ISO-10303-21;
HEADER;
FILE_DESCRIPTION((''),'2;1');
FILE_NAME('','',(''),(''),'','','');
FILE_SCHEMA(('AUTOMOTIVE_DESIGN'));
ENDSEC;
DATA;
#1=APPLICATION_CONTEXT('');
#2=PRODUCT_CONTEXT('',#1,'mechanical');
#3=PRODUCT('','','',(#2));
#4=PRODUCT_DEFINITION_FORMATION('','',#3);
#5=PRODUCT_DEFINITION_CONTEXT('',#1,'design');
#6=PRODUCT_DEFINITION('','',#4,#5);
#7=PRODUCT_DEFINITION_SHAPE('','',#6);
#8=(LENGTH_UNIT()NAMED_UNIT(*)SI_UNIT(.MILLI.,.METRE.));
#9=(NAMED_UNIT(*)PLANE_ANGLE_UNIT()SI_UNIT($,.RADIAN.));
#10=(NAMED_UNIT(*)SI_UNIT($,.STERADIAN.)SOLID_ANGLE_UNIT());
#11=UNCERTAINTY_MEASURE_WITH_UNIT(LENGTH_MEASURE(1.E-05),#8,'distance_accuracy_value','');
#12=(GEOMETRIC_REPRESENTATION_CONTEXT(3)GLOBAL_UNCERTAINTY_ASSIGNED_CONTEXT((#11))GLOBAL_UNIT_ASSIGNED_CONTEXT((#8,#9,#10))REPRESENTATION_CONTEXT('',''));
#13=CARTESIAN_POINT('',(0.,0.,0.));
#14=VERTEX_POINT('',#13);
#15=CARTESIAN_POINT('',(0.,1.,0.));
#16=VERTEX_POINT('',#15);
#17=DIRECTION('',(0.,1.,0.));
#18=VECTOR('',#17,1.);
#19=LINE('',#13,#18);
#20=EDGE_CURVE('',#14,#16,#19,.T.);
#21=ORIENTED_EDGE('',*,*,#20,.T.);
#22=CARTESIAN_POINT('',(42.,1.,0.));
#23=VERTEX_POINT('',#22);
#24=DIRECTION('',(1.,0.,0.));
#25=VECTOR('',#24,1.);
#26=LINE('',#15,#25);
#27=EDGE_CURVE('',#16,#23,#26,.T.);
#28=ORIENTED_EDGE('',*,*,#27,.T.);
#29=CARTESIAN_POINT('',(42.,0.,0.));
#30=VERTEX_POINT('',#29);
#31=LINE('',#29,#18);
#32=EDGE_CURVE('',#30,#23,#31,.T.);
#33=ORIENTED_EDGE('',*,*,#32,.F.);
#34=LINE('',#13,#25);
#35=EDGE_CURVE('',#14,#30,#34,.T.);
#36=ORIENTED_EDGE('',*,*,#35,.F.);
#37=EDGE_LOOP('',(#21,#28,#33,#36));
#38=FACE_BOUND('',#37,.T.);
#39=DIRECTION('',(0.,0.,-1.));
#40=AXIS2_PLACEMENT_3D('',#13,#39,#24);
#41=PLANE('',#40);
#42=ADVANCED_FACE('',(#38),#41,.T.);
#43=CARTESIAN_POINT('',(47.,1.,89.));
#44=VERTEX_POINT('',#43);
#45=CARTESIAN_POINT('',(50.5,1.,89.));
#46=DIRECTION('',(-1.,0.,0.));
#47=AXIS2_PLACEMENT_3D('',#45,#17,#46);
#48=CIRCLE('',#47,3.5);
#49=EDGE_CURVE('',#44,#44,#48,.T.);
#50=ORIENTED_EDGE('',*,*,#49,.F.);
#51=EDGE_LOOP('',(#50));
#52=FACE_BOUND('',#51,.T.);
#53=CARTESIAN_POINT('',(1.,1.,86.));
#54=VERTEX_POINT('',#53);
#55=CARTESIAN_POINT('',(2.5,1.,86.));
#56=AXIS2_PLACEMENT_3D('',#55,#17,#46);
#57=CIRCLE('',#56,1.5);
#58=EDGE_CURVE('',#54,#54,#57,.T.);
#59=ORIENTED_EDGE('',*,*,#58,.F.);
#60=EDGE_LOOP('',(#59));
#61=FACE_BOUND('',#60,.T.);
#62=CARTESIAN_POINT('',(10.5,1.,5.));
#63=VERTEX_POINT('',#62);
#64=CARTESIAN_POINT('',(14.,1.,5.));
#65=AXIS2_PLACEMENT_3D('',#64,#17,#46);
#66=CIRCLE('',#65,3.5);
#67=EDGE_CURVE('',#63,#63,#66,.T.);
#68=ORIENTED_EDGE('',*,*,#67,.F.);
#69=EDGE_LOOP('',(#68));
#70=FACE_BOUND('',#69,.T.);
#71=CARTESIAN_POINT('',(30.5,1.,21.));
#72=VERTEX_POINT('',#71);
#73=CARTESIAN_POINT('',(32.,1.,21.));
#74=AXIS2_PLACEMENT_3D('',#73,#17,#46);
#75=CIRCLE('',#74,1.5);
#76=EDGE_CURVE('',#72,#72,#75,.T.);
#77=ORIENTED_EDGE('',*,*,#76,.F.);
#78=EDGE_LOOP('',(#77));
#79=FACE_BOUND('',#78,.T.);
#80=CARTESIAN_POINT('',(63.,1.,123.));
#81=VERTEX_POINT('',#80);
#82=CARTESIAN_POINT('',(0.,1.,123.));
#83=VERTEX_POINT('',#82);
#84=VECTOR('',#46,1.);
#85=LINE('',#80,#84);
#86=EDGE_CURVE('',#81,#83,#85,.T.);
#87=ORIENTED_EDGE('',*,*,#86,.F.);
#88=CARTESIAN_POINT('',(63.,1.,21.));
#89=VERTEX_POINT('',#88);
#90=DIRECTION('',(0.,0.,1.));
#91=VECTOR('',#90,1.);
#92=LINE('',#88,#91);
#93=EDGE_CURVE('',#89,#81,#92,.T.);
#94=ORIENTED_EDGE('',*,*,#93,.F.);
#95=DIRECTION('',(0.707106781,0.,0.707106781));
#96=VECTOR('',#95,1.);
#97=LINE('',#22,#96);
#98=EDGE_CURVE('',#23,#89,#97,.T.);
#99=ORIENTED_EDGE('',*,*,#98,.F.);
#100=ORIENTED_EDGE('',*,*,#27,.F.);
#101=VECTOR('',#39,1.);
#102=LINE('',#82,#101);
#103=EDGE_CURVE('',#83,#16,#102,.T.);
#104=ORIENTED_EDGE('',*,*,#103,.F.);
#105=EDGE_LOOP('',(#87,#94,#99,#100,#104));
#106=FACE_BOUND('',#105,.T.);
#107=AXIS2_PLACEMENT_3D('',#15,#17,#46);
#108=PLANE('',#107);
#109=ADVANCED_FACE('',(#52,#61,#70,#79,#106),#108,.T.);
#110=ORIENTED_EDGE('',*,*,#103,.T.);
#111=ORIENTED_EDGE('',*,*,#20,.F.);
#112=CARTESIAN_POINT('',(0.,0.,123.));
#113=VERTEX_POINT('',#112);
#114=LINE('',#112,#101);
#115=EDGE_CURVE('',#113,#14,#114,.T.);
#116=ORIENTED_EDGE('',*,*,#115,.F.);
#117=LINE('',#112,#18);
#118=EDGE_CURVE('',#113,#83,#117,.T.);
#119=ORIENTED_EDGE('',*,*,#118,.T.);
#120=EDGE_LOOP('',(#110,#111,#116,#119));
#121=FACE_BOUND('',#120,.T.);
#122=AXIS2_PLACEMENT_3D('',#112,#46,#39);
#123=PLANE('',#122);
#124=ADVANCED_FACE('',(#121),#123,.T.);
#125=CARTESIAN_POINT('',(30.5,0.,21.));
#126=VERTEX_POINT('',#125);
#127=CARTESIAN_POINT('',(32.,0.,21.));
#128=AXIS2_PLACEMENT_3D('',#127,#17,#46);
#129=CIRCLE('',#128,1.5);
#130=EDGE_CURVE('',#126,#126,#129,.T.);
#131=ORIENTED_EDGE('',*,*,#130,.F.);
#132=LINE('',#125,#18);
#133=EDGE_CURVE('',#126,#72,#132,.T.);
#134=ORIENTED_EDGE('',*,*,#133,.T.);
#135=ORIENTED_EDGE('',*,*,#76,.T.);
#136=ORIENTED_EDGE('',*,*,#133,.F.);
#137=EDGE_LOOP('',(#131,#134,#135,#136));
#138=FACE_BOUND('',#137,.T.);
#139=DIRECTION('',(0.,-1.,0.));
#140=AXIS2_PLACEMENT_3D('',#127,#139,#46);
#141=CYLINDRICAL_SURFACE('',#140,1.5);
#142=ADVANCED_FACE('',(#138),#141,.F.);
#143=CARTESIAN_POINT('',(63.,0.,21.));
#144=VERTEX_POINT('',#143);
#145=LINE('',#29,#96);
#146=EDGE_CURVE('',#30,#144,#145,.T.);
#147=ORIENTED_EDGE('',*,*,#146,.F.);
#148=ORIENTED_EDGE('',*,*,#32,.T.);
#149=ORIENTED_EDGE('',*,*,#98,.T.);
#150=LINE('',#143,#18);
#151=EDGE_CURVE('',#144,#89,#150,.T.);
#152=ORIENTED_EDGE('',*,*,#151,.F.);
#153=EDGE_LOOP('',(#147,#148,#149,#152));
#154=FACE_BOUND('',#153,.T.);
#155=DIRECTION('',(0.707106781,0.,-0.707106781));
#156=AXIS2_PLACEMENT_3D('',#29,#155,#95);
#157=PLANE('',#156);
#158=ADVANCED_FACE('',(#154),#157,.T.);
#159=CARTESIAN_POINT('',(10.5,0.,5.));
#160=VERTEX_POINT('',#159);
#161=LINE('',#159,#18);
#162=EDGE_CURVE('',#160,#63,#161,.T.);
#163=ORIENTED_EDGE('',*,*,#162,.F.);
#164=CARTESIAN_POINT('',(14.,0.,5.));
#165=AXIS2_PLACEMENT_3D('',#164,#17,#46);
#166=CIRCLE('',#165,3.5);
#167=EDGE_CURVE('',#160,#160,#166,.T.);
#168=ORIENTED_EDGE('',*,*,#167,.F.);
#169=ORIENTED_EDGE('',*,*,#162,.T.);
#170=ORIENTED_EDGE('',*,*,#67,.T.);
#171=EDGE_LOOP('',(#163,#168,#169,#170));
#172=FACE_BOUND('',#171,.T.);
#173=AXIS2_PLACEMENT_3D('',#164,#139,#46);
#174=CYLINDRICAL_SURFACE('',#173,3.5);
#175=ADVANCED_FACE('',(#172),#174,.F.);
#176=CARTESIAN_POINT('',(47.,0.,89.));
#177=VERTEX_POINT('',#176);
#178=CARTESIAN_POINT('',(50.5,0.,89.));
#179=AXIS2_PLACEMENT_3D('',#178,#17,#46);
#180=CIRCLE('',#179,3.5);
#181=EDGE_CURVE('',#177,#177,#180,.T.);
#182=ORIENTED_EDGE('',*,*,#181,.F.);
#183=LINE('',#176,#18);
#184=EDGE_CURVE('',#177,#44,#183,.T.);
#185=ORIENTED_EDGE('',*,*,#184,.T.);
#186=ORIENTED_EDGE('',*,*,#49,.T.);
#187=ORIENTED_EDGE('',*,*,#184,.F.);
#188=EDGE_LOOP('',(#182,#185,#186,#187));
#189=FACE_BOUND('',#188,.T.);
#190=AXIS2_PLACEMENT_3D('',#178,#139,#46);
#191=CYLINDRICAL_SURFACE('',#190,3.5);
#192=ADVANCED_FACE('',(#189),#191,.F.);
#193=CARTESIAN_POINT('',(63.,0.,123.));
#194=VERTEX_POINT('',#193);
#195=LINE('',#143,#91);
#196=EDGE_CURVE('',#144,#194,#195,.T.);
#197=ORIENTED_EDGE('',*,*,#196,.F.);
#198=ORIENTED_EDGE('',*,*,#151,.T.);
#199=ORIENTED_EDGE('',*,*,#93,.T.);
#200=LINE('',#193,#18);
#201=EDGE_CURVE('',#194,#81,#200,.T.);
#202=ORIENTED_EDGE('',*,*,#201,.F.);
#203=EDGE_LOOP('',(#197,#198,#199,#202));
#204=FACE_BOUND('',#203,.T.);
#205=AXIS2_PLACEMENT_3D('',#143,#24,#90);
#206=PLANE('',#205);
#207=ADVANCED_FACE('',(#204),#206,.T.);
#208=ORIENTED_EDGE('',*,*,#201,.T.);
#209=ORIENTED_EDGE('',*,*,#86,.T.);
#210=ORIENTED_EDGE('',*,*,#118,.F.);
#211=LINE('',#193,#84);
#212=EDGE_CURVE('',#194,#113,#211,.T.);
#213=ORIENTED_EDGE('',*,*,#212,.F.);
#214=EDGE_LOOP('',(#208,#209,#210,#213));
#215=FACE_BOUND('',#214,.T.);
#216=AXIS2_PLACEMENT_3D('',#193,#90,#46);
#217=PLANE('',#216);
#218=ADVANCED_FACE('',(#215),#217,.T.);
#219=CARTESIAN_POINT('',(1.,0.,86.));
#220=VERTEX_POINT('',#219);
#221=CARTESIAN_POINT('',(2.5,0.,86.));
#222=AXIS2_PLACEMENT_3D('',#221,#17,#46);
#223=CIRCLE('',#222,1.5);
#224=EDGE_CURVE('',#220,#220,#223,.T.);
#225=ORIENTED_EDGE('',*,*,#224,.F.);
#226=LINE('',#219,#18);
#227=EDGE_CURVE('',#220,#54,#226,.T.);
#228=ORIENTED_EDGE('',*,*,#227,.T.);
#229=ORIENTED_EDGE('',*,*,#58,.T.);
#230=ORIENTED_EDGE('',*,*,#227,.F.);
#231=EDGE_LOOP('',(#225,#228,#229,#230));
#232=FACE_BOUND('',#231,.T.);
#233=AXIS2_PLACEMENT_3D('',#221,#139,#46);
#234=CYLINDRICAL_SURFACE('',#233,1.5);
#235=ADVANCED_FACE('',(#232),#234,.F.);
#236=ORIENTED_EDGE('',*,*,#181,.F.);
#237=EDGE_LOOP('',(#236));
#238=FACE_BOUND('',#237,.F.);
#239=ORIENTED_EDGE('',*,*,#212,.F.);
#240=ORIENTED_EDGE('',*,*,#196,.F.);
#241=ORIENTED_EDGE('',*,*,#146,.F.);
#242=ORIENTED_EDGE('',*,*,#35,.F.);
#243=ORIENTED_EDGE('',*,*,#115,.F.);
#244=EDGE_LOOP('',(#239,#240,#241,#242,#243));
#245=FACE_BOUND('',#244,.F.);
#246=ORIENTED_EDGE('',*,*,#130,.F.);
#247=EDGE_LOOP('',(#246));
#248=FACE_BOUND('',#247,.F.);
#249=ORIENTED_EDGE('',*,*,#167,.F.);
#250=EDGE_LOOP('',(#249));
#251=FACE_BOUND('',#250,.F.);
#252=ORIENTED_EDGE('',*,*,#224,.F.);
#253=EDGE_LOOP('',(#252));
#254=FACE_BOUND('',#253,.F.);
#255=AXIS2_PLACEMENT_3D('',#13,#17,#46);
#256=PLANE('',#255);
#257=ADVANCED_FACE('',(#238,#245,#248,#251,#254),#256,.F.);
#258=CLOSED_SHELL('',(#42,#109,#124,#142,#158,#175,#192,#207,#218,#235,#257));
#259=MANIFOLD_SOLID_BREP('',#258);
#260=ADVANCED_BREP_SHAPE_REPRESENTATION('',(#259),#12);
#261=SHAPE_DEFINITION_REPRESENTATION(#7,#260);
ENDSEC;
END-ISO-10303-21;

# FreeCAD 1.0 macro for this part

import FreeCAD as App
import Part
import Sketcher
Q = App.Units.Quantity

doc = App.newDocument("Part")
body = doc.addObject("PartDesign::Body", "Body")

# Sketch on XZ plane
sketch1 = body.newObject("Sketcher::SketchObject", "Sketch")
sketch1.AttachmentSupport = (doc.getObject("XZ_Plane"), [""])
sketch1.MapMode = "FlatFace"
sketch1.addGeometry(Part.LineSegment(App.Vector(42, 0, 0), App.Vector(0, 0, 0)), False)
sketch1.addGeometry(Part.LineSegment(App.Vector(0, 0, 0), App.Vector(0, 123, 0)), False)
sketch1.addGeometry(Part.LineSegment(App.Vector(0, 123, 0), App.Vector(63, 123, 0)), False)
sketch1.addGeometry(Part.LineSegment(App.Vector(63, 123, 0), App.Vector(63, 21, 0)), False)
sketch1.addGeometry(Part.LineSegment(App.Vector(63, 21, 0), App.Vector(42, 0, 0)), False)
sketch1.addGeometry(Part.Circle(App.Vector(32, 21, 0), App.Vector(0, 0, 1), 1.5), False)
sketch1.addGeometry(Part.Circle(App.Vector(14, 5, 0), App.Vector(0, 0, 1), 3.5), False)
sketch1.addGeometry(Part.Circle(App.Vector(50.5, 89, 0), App.Vector(0, 0, 1), 3.5), False)
sketch1.addGeometry(Part.Circle(App.Vector(2.5, 86, 0), App.Vector(0, 0, 1), 1.5), False)
sketch1.addConstraint(Sketcher.Constraint("Coincident", 0, 2, 1, 1))
sketch1.addConstraint(Sketcher.Constraint("Coincident", 1, 2, 2, 1))
sketch1.addConstraint(Sketcher.Constraint("Coincident", 2, 2, 3, 1))
sketch1.addConstraint(Sketcher.Constraint("Coincident", 3, 2, 4, 1))
sketch1.addConstraint(Sketcher.Constraint("Coincident", 4, 2, 0, 1))
sketch1.addConstraint(Sketcher.Constraint("Horizontal", 0))
sketch1.addConstraint(Sketcher.Constraint("Vertical", 1))
sketch1.addConstraint(Sketcher.Constraint("Horizontal", 2))
sketch1.addConstraint(Sketcher.Constraint("Vertical", 3))
sketch1.addConstraint(Sketcher.Constraint("Coincident", 0, 2, -1, 1))
sketch1.addConstraint(Sketcher.Constraint("Equal", 6, 7))
sketch1.addConstraint(Sketcher.Constraint("Equal", 5, 8))
sketch1.addConstraint(Sketcher.Constraint("Horizontal", 5, 3, 3, 2))
sketch1.addConstraint(Sketcher.Constraint("Diameter", 5, Q("3 mm")))
sketch1.addConstraint(Sketcher.Constraint("Diameter", 6, Q("7 mm")))
sketch1.addConstraint(Sketcher.Constraint("DistanceX", 0, 2, 0, 1, Q("42 mm")))
sketch1.addConstraint(Sketcher.Constraint("DistanceX", 2, 1, 2, 2, Q("63 mm")))
sketch1.addConstraint(Sketcher.Constraint("DistanceY", 3, 2, 3, 1, Q("102 mm")))
sketch1.addConstraint(Sketcher.Constraint("Angle", 4, Q("-135 deg")))
sketch1.addConstraint(Sketcher.Constraint("DistanceX", -1, 1, 5, 3, Q("32 mm")))
sketch1.addConstraint(Sketcher.Constraint("DistanceX", -1, 1, 6, 3, Q("14 mm")))
sketch1.addConstraint(Sketcher.Constraint("DistanceY", -1, 1, 6, 3, Q("5 mm")))
sketch1.addConstraint(Sketcher.Constraint("DistanceY", 8, 3, 7, 3, Q("3 mm")))
sketch1.addConstraint(Sketcher.Constraint("DistanceY", 8, 3, 1, 2, Q("37 mm")))
sketch1.addConstraint(Sketcher.Constraint("DistanceX", -1, 1, 8, 3, Q("2.5 mm")))
sketch1.addConstraint(Sketcher.Constraint("DistanceX", 7, 3, 2, 2, Q("12.5 mm")))
pad1 = body.newObject("PartDesign::Pad", "Pad")
pad1.Profile = sketch1
pad1.Length = 1
pad1.Reversed = True

doc.recompute()
